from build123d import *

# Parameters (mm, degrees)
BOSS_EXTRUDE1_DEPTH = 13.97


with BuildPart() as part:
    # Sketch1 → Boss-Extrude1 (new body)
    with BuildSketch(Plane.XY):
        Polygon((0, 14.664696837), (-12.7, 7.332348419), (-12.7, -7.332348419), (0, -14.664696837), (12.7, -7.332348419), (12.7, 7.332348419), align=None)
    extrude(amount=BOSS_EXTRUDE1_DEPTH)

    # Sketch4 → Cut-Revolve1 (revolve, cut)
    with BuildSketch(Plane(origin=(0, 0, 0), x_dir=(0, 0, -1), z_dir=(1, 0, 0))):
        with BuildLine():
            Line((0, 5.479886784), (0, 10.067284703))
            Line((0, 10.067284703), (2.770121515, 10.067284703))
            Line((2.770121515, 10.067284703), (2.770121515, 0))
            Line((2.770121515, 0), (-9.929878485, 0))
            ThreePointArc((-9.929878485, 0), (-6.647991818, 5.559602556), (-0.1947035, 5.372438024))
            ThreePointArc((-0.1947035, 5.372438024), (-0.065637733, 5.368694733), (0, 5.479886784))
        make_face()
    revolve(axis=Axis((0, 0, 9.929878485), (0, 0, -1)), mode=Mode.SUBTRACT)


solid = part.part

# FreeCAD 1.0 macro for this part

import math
import FreeCAD as App
import Part
import Sketcher
from FreeCAD import Vector
Q = App.Units.Quantity

doc = App.newDocument("Part")
body = doc.addObject("PartDesign::Body", "Body")

# Sketch on XY plane
sketch1 = body.newObject("Sketcher::SketchObject", "Sketch")
sketch1.AttachmentSupport = (doc.getObject("XY_Plane"), [""])
sketch1.MapMode = "FlatFace"
sketch1.addGeometry(Part.LineSegment(Vector(0, 14.664697, 0), Vector(-12.7, 7.332348, 0)), False)
sketch1.addGeometry(Part.LineSegment(Vector(-12.7, 7.332348, 0), Vector(-12.7, -7.332348, 0)), False)
sketch1.addGeometry(Part.LineSegment(Vector(-12.7, -7.332348, 0), Vector(0, -14.664697, 0)), False)
sketch1.addGeometry(Part.LineSegment(Vector(0, -14.664697, 0), Vector(12.7, -7.332348, 0)), False)
sketch1.addGeometry(Part.LineSegment(Vector(12.7, -7.332348, 0), Vector(12.7, 7.332348, 0)), False)
sketch1.addGeometry(Part.LineSegment(Vector(12.7, 7.332348, 0), Vector(0, 14.664697, 0)), False)
sketch1.addConstraint(Sketcher.Constraint("Coincident", 0, 2, 1, 1))
sketch1.addConstraint(Sketcher.Constraint("Coincident", 1, 2, 2, 1))
sketch1.addConstraint(Sketcher.Constraint("Coincident", 2, 2, 3, 1))
sketch1.addConstraint(Sketcher.Constraint("Coincident", 3, 2, 4, 1))
sketch1.addConstraint(Sketcher.Constraint("Coincident", 4, 2, 5, 1))
sketch1.addConstraint(Sketcher.Constraint("Coincident", 5, 2, 0, 1))
sketch1.addConstraint(Sketcher.Constraint("Vertical", 1))
sketch1.addConstraint(Sketcher.Constraint("Vertical", 4))
sketch1.addConstraint(Sketcher.Constraint("Symmetric", 0, 2, 3, 2, -1, 1))
sketch1.addConstraint(Sketcher.Constraint("Symmetric", 2, 2, 5, 2, -1, 1))
sketch1.addConstraint(Sketcher.Constraint("PointOnObject", 2, 2, -2))
sketch1.addConstraint(Sketcher.Constraint("Parallel", 2, 5))
sketch1.addConstraint(Sketcher.Constraint("Horizontal", 1, 2, 3, 2))
sketch1.addConstraint(Sketcher.Constraint("Angle", 0, Q("-150 deg")))
sketch1.addConstraint(Sketcher.Constraint("DistanceX", 1, 2, 3, 2, Q("1 in")))
sketch1.addConstraint(Sketcher.Constraint("DistanceY", 1, 2, 1, 1, Q("14.664697 mm")))
pad1 = body.newObject("PartDesign::Pad", "Pad")
pad1.Profile = sketch1
pad1.Length = Q("0.55 in")

# Sketch on YZ plane
sketch2 = body.newObject("Sketcher::SketchObject", "Sketch001")
sketch2.AttachmentSupport = (doc.getObject("YZ_Plane"), [""])
sketch2.MapMode = "FlatFace"
sketch2.addGeometry(Part.LineSegment(Vector(10.067285, 0, 0), Vector(5.479887, 0, 0)), False)
sketch2.addGeometry(Part.ArcOfCircle(Part.Circle(Vector(5.479887, 0.127, 0), Vector(0, 0, 1), 0.127), math.radians(147.784957), math.radians(270)), False)
sketch2.addGeometry(Part.ArcOfCircle(Part.Circle(Vector(0, 3.579878, 0), Vector(0, 0, 1), 6.35), math.radians(-32.215043), math.radians(90)), False)
sketch2.addGeometry(Part.LineSegment(Vector(0, 9.929878, 0), Vector(0, -2.770122, 0)), False)
sketch2.addGeometry(Part.LineSegment(Vector(0, -2.770122, 0), Vector(10.067285, -2.770122, 0)), False)
sketch2.addGeometry(Part.LineSegment(Vector(10.067285, -2.770122, 0), Vector(10.067285, 0, 0)), False)
sketch2.addConstraint(Sketcher.Constraint("Tangent", 0, 2, 1, 2))
sketch2.addConstraint(Sketcher.Constraint("Tangent", 1, 1, 2, 1))
sketch2.addConstraint(Sketcher.Constraint("Coincident", 2, 2, 3, 1))
sketch2.addConstraint(Sketcher.Constraint("Coincident", 3, 2, 4, 1))
sketch2.addConstraint(Sketcher.Constraint("Coincident", 4, 2, 5, 1))
sketch2.addConstraint(Sketcher.Constraint("Coincident", 5, 2, 0, 1))
sketch2.addConstraint(Sketcher.Constraint("Horizontal", 0))
sketch2.addConstraint(Sketcher.Constraint("Vertical", 3))
sketch2.addConstraint(Sketcher.Constraint("Horizontal", 4))
sketch2.addConstraint(Sketcher.Constraint("Vertical", 5))
sketch2.addConstraint(Sketcher.Constraint("PointOnObject", 2, 3, -2))
sketch2.addConstraint(Sketcher.Constraint("PointOnObject", 0, 2, -1))
sketch2.addConstraint(Sketcher.Constraint("PointOnObject", 2, 2, -2))
sketch2.addConstraint(Sketcher.Constraint("Radius", 2, Q("0.25 in")))
sketch2.addConstraint(Sketcher.Constraint("DistanceY", 3, 2, 3, 1, Q("0.5 in")))
sketch2.addConstraint(Sketcher.Constraint("Radius", 1, Q("0.005 in")))
sketch2.addConstraint(Sketcher.Constraint("DistanceY", 5, 1, 5, 2, Q("2.770122 mm")))
sketch2.addConstraint(Sketcher.Constraint("DistanceX", 0, 2, 0, 1, Q("4.587398 mm")))
groove = body.newObject("PartDesign::Groove", "Groove")
groove.Profile = sketch2
groove.ReferenceAxis = (sketch2, ["V_Axis"])
groove.Angle = 360

doc.recompute()
